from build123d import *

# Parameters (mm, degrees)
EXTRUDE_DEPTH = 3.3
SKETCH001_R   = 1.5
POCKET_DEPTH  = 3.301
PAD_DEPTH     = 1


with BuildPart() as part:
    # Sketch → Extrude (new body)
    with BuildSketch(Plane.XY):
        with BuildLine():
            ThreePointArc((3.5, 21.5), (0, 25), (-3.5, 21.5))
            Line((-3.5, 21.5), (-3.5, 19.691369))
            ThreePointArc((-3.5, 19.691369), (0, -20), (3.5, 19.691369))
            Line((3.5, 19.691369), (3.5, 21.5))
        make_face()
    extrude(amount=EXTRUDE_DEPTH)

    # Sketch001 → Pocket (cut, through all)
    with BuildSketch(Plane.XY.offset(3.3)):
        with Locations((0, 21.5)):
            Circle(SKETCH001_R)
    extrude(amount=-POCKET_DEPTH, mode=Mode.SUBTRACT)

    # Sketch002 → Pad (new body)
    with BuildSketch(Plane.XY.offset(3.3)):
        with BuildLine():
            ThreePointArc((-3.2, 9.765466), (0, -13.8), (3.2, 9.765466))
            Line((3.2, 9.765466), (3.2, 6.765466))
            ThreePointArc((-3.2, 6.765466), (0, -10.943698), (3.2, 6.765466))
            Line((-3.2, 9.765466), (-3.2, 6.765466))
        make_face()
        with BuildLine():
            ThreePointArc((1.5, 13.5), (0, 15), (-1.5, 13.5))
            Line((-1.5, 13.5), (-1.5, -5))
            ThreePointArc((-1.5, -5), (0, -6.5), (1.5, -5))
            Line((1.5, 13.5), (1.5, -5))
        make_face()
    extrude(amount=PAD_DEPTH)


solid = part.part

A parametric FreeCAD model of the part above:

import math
import FreeCAD as App
import Part
import Sketcher
from FreeCAD import Vector
Q = App.Units.Quantity

doc = App.newDocument("Part")
body = doc.addObject("PartDesign::Body", "Body")

# Sketch on XY plane
sketch1 = doc.addObject("Sketcher::SketchObject", "Sketch")
body.addObject(sketch1)
sketch1.AttachmentSupport = (doc.XY_Plane, [""])
sketch1.MapMode = "FlatFace"
sketch1.addGeometry([
    Part.ArcOfCircle(Part.Circle(Vector(0, 21.5, 0), Vector(0, 0, 1), 3.5), math.radians(0), math.radians(180)),
    Part.LineSegment(Vector(-3.5, 21.5, 0), Vector(-3.5, 19.7, 0)),
    Part.ArcOfCircle(Part.Circle(Vector(0, 0, 0), Vector(0, 0, 1), 20), math.radians(100), math.radians(440)),
    Part.LineSegment(Vector(3.5, 19.7, 0), Vector(3.5, 21.5, 0)),
], False)
sketch1.addConstraint([
    Sketcher.Constraint("Tangent", 0, 2, 1, 1),
    Sketcher.Constraint("Coincident", 1, 2, 2, 1),
    Sketcher.Constraint("Coincident", 2, 2, 3, 1),
    Sketcher.Constraint("Tangent", 3, 2, 0, 1),
    Sketcher.Constraint("Vertical", 1),
    Sketcher.Constraint("Vertical", 3),
    Sketcher.Constraint("Coincident", 2, 3, -1, 1),
    Sketcher.Constraint("PointOnObject", 0, 3, -2),
    Sketcher.Constraint("Radius", 2, Q("20 mm")),
    Sketcher.Constraint("Radius", 0, Q("3.5 mm")),
    Sketcher.Constraint("DistanceY", -1, 1, 0, 3, Q("21.5 mm")),
])
pad1 = doc.addObject("PartDesign::Pad", "Pad")
body.addObject(pad1)
pad1.Profile = sketch1
pad1.Length = 3.3

# Sketch on XY plane
sketch2 = doc.addObject("Sketcher::SketchObject", "Sketch001")
body.addObject(sketch2)
sketch2.AttachmentSupport = (doc.XY_Plane, [""])
sketch2.MapMode = "FlatFace"
sketch2.AttachmentOffset = App.Placement(Vector(0, 0, 3.3), App.Rotation())
sketch2.addGeometry(Part.Circle(Vector(0, 21.5, 0), Vector(0, 0, 1), 1.5), False)
sketch2.addConstraint([
    Sketcher.Constraint("PointOnObject", 0, 3, -2),
    Sketcher.Constraint("Diameter", 0, Q("3 mm")),
    Sketcher.Constraint("DistanceY", -1, 1, 0, 3, Q("21.5 mm")),
])
pocket1 = doc.addObject("PartDesign::Pocket", "Pocket")
body.addObject(pocket1)
pocket1.Profile = sketch2
pocket1.Type = "ThroughAll"

# Sketch on XY plane
sketch3 = doc.addObject("Sketcher::SketchObject", "Sketch002")
body.addObject(sketch3)
sketch3.AttachmentSupport = (doc.XY_Plane, [""])
sketch3.MapMode = "FlatFace"
sketch3.AttachmentOffset = App.Placement(Vector(0, 0, 3.3), App.Rotation())
sketch3.addGeometry([
    Part.ArcOfCircle(Part.Circle(Vector(0, -1.8, 0), Vector(0, 0, 1), 12), math.radians(105), math.radians(435)),  # 0
    Part.LineSegment(Vector(3.2, 9.8, 0), Vector(3.2, 6.8, 0)),  # 1
    Part.ArcOfCircle(Part.Circle(Vector(0, -1.8, 0), Vector(0, 0, 1), 9.1), math.radians(110), math.radians(430)),  # 2
    Part.LineSegment(Vector(-3.2, 6.8, 0), Vector(-3.2, 9.8, 0)),  # 3
    Part.ArcOfCircle(Part.Circle(Vector(0, 13.5, 0), Vector(0, 0, 1), 1.5), math.radians(0), math.radians(180)),  # 4
    Part.LineSegment(Vector(-1.5, 13.5, 0), Vector(-1.5, -5, 0)),  # 5
    Part.ArcOfCircle(Part.Circle(Vector(0, -5, 0), Vector(0, 0, 1), 1.5), math.radians(180), math.radians(360)),  # 6
    Part.LineSegment(Vector(1.5, -5, 0), Vector(1.5, 13.5, 0)),  # 7
], False)
sketch3.addConstraint([
    Sketcher.Constraint("Coincident", 0, 2, 1, 1),
    Sketcher.Constraint("Coincident", 1, 2, 2, 2),
    Sketcher.Constraint("Coincident", 2, 1, 3, 1),
    Sketcher.Constraint("Coincident", 3, 2, 0, 1),
    Sketcher.Constraint("Tangent", 4, 2, 5, 1),
    Sketcher.Constraint("Tangent", 5, 2, 6, 1),
    Sketcher.Constraint("Tangent", 6, 2, 7, 1),
    Sketcher.Constraint("Tangent", 7, 2, 4, 1),
    Sketcher.Constraint("Vertical", 1),
    Sketcher.Constraint("Vertical", 3),
    Sketcher.Constraint("Vertical", 5),
    Sketcher.Constraint("Vertical", 7),
    Sketcher.Constraint("Coincident", 2, 3, 0, 3),
    Sketcher.Constraint("Symmetric", 1, 2, 2, 1, -2),
    Sketcher.Constraint("PointOnObject", 4, 3, -2),
    Sketcher.Constraint("Radius", 0, Q("12 mm")),
    Sketcher.Constraint("Radius", 4, Q("1.5 mm")),
    Sketcher.Constraint("DistanceY", 1, 2, 1, 1, Q("3 mm")),
    Sketcher.Constraint("DistanceY", 5, 2, 5, 1, Q("18.5 mm")),
    Sketcher.Constraint("DistanceY", 6, 3, -1, 1, Q("5 mm")),
    Sketcher.Constraint("DistanceY", 0, 3, -1, 1, Q("1.8 mm")),
    Sketcher.Constraint("DistanceX", -1, 1, 0, 2, Q("3.2 mm")),
])
pad2 = doc.addObject("PartDesign::Pad", "Pad001")
body.addObject(pad2)
pad2.Profile = sketch3
pad2.Length = 1

doc.recompute()
